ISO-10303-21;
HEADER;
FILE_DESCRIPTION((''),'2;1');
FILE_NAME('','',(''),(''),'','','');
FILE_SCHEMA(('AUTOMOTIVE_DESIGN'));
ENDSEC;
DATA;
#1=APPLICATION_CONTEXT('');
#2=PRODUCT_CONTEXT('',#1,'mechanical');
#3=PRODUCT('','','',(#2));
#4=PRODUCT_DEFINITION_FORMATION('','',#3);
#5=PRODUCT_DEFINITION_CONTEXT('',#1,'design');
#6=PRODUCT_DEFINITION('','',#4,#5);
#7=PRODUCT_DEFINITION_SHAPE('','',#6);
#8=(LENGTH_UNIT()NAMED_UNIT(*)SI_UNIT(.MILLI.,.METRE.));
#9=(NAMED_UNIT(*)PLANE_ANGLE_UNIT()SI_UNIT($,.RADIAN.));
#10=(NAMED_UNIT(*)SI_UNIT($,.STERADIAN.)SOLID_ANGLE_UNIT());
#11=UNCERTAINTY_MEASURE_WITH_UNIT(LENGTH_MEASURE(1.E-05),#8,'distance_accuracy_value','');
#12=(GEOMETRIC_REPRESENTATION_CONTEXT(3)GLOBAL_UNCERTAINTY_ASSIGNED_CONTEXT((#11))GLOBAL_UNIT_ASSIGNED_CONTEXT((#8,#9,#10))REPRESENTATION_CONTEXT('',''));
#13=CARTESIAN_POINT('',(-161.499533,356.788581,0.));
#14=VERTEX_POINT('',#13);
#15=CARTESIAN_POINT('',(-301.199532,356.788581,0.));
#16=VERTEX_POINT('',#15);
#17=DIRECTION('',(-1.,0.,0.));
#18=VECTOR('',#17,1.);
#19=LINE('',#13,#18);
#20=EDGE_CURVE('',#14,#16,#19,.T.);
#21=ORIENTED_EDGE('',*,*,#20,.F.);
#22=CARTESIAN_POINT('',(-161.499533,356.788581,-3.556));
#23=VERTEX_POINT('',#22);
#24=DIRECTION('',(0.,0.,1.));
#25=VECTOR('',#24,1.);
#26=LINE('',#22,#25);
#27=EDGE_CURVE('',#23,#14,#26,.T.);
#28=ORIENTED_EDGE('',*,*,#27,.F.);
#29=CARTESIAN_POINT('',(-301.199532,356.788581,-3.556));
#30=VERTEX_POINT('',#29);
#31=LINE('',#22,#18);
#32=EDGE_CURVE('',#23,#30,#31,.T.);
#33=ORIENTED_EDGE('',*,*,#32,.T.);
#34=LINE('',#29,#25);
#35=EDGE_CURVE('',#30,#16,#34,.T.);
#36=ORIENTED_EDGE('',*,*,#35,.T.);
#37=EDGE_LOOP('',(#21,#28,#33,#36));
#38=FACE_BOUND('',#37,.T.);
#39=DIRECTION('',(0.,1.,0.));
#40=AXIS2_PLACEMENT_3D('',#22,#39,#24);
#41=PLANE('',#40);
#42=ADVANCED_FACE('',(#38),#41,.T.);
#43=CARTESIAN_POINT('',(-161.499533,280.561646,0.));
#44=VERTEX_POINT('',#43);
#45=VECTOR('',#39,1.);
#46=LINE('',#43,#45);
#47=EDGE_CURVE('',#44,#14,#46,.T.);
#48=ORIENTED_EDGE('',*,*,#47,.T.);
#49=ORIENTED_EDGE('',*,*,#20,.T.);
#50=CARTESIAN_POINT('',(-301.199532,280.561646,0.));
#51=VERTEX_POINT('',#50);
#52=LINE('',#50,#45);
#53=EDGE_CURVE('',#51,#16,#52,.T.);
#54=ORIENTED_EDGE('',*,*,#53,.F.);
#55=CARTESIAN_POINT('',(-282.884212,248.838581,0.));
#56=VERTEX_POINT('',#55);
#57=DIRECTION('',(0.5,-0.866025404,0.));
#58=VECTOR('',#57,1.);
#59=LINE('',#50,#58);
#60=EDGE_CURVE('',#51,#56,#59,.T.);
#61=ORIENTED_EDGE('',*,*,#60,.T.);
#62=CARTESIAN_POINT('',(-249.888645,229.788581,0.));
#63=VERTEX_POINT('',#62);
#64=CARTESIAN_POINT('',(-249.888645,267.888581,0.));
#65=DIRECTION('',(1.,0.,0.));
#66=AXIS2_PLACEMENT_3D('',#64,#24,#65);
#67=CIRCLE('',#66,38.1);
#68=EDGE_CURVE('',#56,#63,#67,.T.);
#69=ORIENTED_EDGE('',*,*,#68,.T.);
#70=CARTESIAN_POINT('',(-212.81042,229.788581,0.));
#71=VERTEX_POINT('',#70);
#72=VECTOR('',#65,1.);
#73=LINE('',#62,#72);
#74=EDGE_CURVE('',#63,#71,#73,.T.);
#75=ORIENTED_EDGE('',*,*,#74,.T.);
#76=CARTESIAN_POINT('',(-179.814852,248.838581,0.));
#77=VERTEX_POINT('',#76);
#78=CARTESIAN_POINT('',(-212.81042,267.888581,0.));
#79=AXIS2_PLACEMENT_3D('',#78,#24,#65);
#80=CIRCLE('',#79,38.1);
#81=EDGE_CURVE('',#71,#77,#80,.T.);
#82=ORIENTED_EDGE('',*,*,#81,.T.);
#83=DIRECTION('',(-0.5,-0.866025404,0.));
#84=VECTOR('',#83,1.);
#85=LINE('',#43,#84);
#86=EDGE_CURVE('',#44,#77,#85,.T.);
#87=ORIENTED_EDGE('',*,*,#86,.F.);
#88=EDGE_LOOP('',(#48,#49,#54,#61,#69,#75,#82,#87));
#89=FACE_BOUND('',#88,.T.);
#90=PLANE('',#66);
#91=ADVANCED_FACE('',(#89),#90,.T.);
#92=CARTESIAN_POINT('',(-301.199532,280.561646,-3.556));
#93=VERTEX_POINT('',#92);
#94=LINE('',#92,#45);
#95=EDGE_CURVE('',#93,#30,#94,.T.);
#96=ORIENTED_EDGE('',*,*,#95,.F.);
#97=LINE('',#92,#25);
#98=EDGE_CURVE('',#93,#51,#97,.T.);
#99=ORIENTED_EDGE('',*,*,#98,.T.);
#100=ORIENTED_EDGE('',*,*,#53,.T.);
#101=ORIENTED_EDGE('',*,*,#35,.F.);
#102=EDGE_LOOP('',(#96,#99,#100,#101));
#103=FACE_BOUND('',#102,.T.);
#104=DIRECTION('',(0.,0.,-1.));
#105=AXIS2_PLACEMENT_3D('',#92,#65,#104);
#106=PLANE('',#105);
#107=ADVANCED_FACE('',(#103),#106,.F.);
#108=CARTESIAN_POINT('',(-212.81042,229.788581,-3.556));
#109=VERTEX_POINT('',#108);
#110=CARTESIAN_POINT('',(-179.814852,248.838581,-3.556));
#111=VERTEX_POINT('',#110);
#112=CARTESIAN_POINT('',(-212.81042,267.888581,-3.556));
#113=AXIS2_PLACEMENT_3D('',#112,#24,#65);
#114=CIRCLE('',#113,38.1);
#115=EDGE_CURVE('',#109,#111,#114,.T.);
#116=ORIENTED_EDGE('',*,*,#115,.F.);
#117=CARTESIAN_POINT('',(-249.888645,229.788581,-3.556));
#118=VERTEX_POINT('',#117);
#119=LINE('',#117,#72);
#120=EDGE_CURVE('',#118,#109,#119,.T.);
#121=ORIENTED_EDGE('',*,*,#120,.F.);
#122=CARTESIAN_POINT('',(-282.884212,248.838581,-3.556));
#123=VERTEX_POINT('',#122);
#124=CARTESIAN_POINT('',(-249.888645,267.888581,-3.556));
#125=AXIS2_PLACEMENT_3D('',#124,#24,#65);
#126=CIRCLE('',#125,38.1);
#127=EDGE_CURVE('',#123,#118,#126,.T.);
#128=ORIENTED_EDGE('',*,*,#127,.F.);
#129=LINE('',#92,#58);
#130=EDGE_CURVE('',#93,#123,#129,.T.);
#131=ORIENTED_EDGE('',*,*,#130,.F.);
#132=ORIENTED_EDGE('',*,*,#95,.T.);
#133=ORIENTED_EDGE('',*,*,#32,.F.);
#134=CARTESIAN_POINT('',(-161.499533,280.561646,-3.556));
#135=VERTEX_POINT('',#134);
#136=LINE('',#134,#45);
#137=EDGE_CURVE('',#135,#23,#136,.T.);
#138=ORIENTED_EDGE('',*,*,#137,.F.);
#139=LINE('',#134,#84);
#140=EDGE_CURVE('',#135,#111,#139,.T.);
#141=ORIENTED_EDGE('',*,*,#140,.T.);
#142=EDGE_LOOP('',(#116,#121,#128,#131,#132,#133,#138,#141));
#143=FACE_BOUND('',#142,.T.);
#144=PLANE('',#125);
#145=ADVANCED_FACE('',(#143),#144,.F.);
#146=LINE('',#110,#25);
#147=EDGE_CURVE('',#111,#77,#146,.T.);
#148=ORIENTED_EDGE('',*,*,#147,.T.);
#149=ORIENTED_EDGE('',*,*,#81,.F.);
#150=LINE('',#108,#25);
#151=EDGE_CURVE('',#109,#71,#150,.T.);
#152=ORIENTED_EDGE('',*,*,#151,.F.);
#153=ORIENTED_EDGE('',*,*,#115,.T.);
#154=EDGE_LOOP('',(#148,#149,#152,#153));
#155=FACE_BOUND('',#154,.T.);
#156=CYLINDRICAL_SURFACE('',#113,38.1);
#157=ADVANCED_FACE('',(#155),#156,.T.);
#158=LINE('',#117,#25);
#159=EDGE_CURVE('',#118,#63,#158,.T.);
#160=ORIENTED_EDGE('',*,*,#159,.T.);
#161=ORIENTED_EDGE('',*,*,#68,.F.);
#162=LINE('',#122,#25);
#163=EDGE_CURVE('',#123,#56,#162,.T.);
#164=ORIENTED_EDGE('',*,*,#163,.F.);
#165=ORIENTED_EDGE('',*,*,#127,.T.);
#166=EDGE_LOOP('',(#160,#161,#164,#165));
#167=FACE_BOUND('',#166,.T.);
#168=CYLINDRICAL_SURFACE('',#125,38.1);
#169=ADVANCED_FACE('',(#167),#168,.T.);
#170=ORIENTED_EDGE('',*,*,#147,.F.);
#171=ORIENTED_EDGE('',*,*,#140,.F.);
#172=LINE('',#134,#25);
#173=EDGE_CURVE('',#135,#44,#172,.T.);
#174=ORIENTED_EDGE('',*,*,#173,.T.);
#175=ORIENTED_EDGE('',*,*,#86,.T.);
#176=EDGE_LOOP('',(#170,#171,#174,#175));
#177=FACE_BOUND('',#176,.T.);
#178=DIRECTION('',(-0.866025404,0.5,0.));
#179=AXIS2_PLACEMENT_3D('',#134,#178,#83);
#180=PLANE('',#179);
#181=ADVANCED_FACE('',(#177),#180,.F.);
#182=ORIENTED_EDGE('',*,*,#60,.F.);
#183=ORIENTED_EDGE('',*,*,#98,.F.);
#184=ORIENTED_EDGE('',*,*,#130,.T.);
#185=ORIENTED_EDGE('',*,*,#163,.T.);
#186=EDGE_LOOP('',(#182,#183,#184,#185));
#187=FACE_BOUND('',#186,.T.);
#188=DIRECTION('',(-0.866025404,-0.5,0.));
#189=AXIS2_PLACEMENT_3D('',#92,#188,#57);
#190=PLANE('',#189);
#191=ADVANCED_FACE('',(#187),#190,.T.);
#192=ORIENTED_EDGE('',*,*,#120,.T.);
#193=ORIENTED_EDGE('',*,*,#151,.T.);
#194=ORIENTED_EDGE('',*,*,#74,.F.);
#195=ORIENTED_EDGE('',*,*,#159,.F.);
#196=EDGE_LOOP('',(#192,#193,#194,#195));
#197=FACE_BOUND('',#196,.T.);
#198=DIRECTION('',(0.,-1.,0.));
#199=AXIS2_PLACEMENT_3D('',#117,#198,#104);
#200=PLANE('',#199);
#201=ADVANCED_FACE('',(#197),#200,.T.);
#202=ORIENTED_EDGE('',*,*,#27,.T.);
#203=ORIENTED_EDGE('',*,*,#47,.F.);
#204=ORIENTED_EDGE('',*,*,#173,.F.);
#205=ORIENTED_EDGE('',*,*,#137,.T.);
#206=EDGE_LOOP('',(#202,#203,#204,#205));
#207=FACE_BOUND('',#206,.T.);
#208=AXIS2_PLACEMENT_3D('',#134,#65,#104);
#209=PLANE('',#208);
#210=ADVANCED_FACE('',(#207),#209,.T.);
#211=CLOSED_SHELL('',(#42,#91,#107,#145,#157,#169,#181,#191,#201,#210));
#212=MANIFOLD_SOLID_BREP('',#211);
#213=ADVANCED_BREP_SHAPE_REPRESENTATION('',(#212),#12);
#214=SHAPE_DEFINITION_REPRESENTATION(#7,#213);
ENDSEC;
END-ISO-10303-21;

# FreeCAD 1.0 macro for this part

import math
import FreeCAD as App
import Part
import Sketcher

V = App.Vector
Q = App.Units.Quantity

doc = App.newDocument("Part")
params = doc.addObject("Spreadsheet::Sheet", "Params")
for row, (alias, value) in enumerate([
    ("sketch1_radius", "1.5 in"),
    ("sketch1_width", "5.5 in"),
    ("pad1_length", "0.14 in"),
], start=1):
    params.set(f"A{row}", alias)
    params.set(f"B{row}", "=" + value)
    params.setAlias(f"B{row}", alias)

body = doc.addObject("PartDesign::Body", "Body")

sketch1 = doc.addObject("Sketcher::SketchObject", "Sketch")
body.addObject(sketch1)
sketch1.AttachmentSupport = (doc.XY_Plane, [""])
sketch1.MapMode = "FlatFace"
sketch1.addGeometry([
    Part.LineSegment(V(-161, 281, 0), V(-161, 357, 0)),
    Part.LineSegment(V(-161, 357, 0), V(-301, 357, 0)),
    Part.LineSegment(V(-301, 357, 0), V(-301, 281, 0)),
    Part.LineSegment(V(-301, 281, 0), V(-283, 249, 0)),
    Part.ArcOfCircle(Part.Circle(V(-250, 268, 0), V(0, 0, 1), 38), math.radians(-150), math.radians(-90)),
    Part.LineSegment(V(-250, 230, 0), V(-213, 230, 0)),
    Part.ArcOfCircle(Part.Circle(V(-213, 268, 0), V(0, 0, 1), 38), math.radians(-90), math.radians(-30)),
    Part.LineSegment(V(-180, 249, 0), V(-161, 281, 0)),
], False)
sketch1.addConstraint([
    Sketcher.Constraint("Coincident", 0, 2, 1, 1),
    Sketcher.Constraint("Coincident", 1, 2, 2, 1),
    Sketcher.Constraint("Coincident", 2, 2, 3, 1),
    Sketcher.Constraint("Tangent", 3, 2, 4, 1),
    Sketcher.Constraint("Tangent", 4, 2, 5, 1),
    Sketcher.Constraint("Tangent", 5, 2, 6, 1),
    Sketcher.Constraint("Tangent", 6, 2, 7, 1),
    Sketcher.Constraint("Coincident", 7, 2, 0, 1),
    Sketcher.Constraint("Vertical", 0),
    Sketcher.Constraint("Horizontal", 1),
    Sketcher.Constraint("Vertical", 2),
    Sketcher.Constraint("Horizontal", 5),
    Sketcher.Constraint("Equal", 4, 6),
    Sketcher.Constraint("Horizontal", 3, 2, 6, 2),
    Sketcher.Constraint("Horizontal", 2, 2, 7, 2),
    Sketcher.Constraint("Radius", 4, Q("1.5 in")),
    Sketcher.Constraint("DistanceX", 1, 2, 1, 1, Q("5.5 in")),
    Sketcher.Constraint("Angle", 3, Q("-60 deg")),
    Sketcher.Constraint("DistanceY", 4, 2, 1, 2, Q("5 in")),
    Sketcher.Constraint("Distance", 3, 36.63064),
    Sketcher.Constraint("DistanceY", -1, 1, 4, 3, 267.888581),
    Sketcher.Constraint("DistanceX", 6, 3, -1, 1, 212.81042),
])
sketch1.setExpression("Constraints[15]", "Params.sketch1_radius")
sketch1.setExpression("Constraints[16]", "Params.sketch1_width")
pad1 = doc.addObject("PartDesign::Pad", "Pad")
body.addObject(pad1)
pad1.Profile = sketch1
pad1.setExpression("Length", "Params.pad1_length")
pad1.Reversed = True

doc.recompute()
